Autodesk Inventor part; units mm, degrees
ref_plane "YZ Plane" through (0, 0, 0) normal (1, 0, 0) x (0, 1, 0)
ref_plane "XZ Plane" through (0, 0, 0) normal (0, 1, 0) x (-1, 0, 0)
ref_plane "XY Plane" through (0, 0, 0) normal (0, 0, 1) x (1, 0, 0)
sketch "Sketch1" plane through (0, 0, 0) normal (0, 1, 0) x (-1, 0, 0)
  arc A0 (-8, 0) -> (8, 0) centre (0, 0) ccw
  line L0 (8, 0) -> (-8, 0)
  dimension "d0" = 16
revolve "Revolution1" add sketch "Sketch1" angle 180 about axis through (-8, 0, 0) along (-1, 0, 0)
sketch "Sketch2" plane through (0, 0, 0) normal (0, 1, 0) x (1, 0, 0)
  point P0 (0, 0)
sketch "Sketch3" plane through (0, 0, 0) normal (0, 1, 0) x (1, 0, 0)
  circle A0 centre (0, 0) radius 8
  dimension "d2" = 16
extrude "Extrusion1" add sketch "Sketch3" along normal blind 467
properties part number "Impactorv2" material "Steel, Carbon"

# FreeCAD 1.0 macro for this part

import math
import FreeCAD as App
import Part
import Sketcher
from FreeCAD import Vector

doc = App.newDocument("Part")
body = doc.addObject("PartDesign::Body", "Body")

# Sketch on XZ plane
sketch1 = body.newObject("Sketcher::SketchObject", "Sketch")
sketch1.AttachmentSupport = (doc.getObject("XZ_Plane"), [""])
sketch1.MapMode = "FlatFace"
sketch1.addGeometry(Part.LineSegment(Vector(-8, 0, 0), Vector(8, 0, 0)), False)
sketch1.addGeometry(Part.ArcOfCircle(Part.Circle(Vector(0, 0, 0), Vector(0, 0, 1), 8), math.radians(180), math.radians(360)), False)
sketch1.addConstraint(Sketcher.Constraint("Coincident", 0, 1, 1, 1))
sketch1.addConstraint(Sketcher.Constraint("Coincident", 1, 2, 0, 2))
sketch1.addConstraint(Sketcher.Constraint("Horizontal", 0))
sketch1.addConstraint(Sketcher.Constraint("Coincident", 1, 3, -1, 1))
sketch1.addConstraint(Sketcher.Constraint("PointOnObject", 0, 1, -1))
sketch1.addConstraint(Sketcher.Constraint("Radius", 1, 8.0))
revolution = body.newObject("PartDesign::Revolution", "Revolution")
revolution.Profile = sketch1
revolution.ReferenceAxis = (sketch1, ["H_Axis"])
revolution.Angle = 180
revolution.Reversed = True

# Sketch on XZ plane
sketch2 = body.newObject("Sketcher::SketchObject", "Sketch001")
sketch2.AttachmentSupport = (doc.getObject("XZ_Plane"), [""])
sketch2.MapMode = "FlatFace"
sketch2.addGeometry(Part.Circle(Vector(0, 0, 0), Vector(0, 0, 1), 8), False)
sketch2.addConstraint(Sketcher.Constraint("Coincident", 0, 3, -1, 1))
sketch2.addConstraint(Sketcher.Constraint("Diameter", 0, 16.0))
pad1 = body.newObject("PartDesign::Pad", "Pad")
pad1.Profile = sketch2
pad1.Length = 467
pad1.Reversed = True

doc.recompute()
